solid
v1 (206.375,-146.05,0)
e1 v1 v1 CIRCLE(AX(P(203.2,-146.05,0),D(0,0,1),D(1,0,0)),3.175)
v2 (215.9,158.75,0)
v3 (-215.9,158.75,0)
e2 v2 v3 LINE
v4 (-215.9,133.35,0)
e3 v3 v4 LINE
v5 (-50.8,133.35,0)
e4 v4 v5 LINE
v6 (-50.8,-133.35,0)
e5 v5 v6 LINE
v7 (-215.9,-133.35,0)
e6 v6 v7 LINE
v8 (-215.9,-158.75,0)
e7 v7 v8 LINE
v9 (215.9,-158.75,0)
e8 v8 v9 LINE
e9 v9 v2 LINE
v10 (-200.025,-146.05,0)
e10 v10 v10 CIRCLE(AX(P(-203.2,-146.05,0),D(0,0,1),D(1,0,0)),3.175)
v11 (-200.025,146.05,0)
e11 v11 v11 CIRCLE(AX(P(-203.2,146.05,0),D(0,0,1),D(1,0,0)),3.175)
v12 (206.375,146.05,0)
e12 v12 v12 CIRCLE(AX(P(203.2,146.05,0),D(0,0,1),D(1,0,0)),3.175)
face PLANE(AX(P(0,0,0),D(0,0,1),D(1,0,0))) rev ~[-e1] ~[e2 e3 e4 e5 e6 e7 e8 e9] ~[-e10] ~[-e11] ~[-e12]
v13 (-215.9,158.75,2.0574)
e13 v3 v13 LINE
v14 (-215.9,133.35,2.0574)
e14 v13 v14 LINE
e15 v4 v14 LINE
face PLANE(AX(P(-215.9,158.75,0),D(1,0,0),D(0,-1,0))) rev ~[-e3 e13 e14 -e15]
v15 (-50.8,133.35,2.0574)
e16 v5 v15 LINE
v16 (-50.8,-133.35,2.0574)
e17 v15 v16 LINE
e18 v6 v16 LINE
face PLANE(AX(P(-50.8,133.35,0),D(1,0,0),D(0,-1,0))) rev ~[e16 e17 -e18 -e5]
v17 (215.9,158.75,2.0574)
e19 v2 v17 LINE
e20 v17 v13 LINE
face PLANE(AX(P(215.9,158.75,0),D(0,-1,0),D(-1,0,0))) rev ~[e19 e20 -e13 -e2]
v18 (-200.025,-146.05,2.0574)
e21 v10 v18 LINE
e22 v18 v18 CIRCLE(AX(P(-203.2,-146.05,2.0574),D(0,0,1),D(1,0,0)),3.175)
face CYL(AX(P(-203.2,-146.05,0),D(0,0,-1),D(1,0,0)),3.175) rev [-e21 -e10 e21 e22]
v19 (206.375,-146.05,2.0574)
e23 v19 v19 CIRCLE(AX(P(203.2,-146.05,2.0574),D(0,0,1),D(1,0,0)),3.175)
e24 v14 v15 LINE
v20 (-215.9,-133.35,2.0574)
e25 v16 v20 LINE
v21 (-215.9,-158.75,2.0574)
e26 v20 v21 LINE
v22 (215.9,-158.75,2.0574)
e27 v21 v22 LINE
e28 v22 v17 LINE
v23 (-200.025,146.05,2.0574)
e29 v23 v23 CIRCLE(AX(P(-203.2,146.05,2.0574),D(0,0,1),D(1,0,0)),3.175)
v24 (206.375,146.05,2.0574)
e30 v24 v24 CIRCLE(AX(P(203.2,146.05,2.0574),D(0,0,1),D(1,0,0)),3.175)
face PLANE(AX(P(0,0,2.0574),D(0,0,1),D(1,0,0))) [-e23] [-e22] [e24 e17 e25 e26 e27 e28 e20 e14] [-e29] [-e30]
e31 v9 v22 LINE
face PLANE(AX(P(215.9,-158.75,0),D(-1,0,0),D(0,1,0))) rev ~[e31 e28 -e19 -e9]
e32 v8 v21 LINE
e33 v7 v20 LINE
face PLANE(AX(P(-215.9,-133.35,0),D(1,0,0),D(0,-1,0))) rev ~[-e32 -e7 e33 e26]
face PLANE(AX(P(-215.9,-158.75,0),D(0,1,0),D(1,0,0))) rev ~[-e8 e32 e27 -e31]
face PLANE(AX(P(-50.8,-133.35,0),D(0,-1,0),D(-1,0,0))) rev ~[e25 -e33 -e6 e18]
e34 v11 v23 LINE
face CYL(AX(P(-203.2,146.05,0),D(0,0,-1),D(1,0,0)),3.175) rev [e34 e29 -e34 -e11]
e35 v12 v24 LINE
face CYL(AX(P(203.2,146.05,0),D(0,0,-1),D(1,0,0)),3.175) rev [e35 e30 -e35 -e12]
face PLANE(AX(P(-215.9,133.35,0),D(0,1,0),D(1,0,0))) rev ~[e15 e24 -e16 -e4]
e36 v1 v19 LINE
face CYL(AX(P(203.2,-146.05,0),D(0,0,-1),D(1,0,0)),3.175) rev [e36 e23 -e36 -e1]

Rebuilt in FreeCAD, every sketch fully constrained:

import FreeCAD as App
import Part
import Sketcher
Q = App.Units.Quantity

doc = App.newDocument("Part")
body = doc.addObject("PartDesign::Body", "Body")

# Sketch on XY plane
sketch1 = body.newObject("Sketcher::SketchObject", "Sketch")
sketch1.AttachmentSupport = (doc.getObject("XY_Plane"), [""])
sketch1.MapMode = "FlatFace"
sketch1.addGeometry([
    Part.LineSegment(App.Vector(215.9, 158.8, 0), App.Vector(-215.9, 158.8, 0)),  # 0
    Part.LineSegment(App.Vector(-215.9, 158.8, 0), App.Vector(-215.9, 133.3, 0)),  # 1
    Part.LineSegment(App.Vector(-215.9, 133.3, 0), App.Vector(-50.8, 133.3, 0)),  # 2
    Part.LineSegment(App.Vector(-50.8, 133.3, 0), App.Vector(-50.8, -133.3, 0)),  # 3
    Part.LineSegment(App.Vector(-50.8, -133.3, 0), App.Vector(-215.9, -133.3, 0)),  # 4
    Part.LineSegment(App.Vector(-215.9, -133.3, 0), App.Vector(-215.9, -158.8, 0)),  # 5
    Part.LineSegment(App.Vector(-215.9, -158.8, 0), App.Vector(215.9, -158.8, 0)),  # 6
    Part.LineSegment(App.Vector(215.9, -158.8, 0), App.Vector(215.9, 158.8, 0)),  # 7
    Part.Circle(App.Vector(-203.2, -146.1, 0), App.Vector(0, 0, 1), 3.2),  # 8
    Part.Circle(App.Vector(203.2, -146.1, 0), App.Vector(0, 0, 1), 3.2),  # 9
    Part.Circle(App.Vector(-203.2, 146.1, 0), App.Vector(0, 0, 1), 3.2),  # 10
    Part.Circle(App.Vector(203.2, 146.1, 0), App.Vector(0, 0, 1), 3.2),  # 11
], False)
sketch1.addConstraint([
    Sketcher.Constraint("Coincident", 0, 2, 1, 1),
    Sketcher.Constraint("Coincident", 1, 2, 2, 1),
    Sketcher.Constraint("Coincident", 2, 2, 3, 1),
    Sketcher.Constraint("Coincident", 3, 2, 4, 1),
    Sketcher.Constraint("Coincident", 4, 2, 5, 1),
    Sketcher.Constraint("Coincident", 5, 2, 6, 1),
    Sketcher.Constraint("Coincident", 6, 2, 7, 1),
    Sketcher.Constraint("Coincident", 7, 2, 0, 1),
    Sketcher.Constraint("Horizontal", 0),
    Sketcher.Constraint("Vertical", 1),
    Sketcher.Constraint("Horizontal", 2),
    Sketcher.Constraint("Vertical", 3),
    Sketcher.Constraint("Horizontal", 4),
    Sketcher.Constraint("Vertical", 5),
    Sketcher.Constraint("Horizontal", 6),
    Sketcher.Constraint("Vertical", 7),
    Sketcher.Constraint("Equal", 8, 9),
    Sketcher.Constraint("Equal", 9, 10),
    Sketcher.Constraint("Equal", 10, 11),
    Sketcher.Constraint("Symmetric", 9, 3, 10, 3, -1, 1),
    Sketcher.Constraint("Symmetric", 8, 3, 11, 3, -1, 1),
    Sketcher.Constraint("Symmetric", 0, 2, 6, 2, -1, 1),
    Sketcher.Constraint("Symmetric", 8, 3, 9, 3, -2),
    Sketcher.Constraint("Symmetric", 1, 2, 4, 2, -1),
    Sketcher.Constraint("Diameter", 8, Q("0.25 in")),
    Sketcher.Constraint("DistanceX", 0, 2, 0, 1, Q("17 in")),
    Sketcher.Constraint("DistanceY", 1, 2, 1, 1, Q("1 in")),
    Sketcher.Constraint("DistanceX", 2, 1, 2, 2, Q("6.5 in")),
    Sketcher.Constraint("DistanceY", 3, 2, 3, 1, Q("10.5 in")),
    Sketcher.Constraint("DistanceX", 8, 3, -1, 1, Q("8 in")),
    Sketcher.Constraint("DistanceY", 8, 3, 0, 2, Q("12 in")),
])
pad1 = body.newObject("PartDesign::Pad", "Pad")
pad1.Profile = sketch1
pad1.Length = Q("0.081 in")

doc.recompute()
